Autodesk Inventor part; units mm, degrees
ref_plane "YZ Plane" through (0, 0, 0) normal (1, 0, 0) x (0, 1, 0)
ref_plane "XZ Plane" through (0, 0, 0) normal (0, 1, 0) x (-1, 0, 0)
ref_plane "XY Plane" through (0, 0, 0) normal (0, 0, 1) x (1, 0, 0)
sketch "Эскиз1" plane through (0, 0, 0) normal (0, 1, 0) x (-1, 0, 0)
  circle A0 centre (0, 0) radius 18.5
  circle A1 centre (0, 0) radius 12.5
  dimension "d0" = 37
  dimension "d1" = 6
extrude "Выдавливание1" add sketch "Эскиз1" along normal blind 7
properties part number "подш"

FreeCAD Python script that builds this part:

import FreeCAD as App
import Part
import Sketcher

V = App.Vector

doc = App.newDocument("Part")
params = doc.addObject("Spreadsheet::Sheet", "Params")
for row, (alias, value) in enumerate([
    ("sketch1_diameter", "37 mm"),
    ("sketch1_diameter2", "25 mm"),
    ("pad1_length", "7 mm"),
], start=1):
    params.set(f"A{row}", alias)
    params.set(f"B{row}", "=" + value)
    params.setAlias(f"B{row}", alias)

body = doc.addObject("PartDesign::Body", "Body")

sketch1 = body.newObject("Sketcher::SketchObject", "Sketch")
sketch1.AttachmentSupport = (doc.getObject("XZ_Plane"), [""])
sketch1.MapMode = "FlatFace"
sketch1.addGeometry([
    Part.Circle(V(0, 0, 0), V(0, 0, 1), 18),
    Part.Circle(V(0, 0, 0), V(0, 0, 1), 12),
], False)
sketch1.addConstraint([
    Sketcher.Constraint("Coincident", 0, 3, -1, 1),
    Sketcher.Constraint("Coincident", 1, 3, -1, 1),
    Sketcher.Constraint("Diameter", 0, 37.0),
    Sketcher.Constraint("Diameter", 1, 25.0),
])
sketch1.setExpression("Constraints[2]", "Params.sketch1_diameter")
sketch1.setExpression("Constraints[3]", "Params.sketch1_diameter2")
pad1 = body.newObject("PartDesign::Pad", "Pad")
pad1.Profile = sketch1
pad1.setExpression("Length", "Params.pad1_length")
pad1.Reversed = True

doc.recompute()
